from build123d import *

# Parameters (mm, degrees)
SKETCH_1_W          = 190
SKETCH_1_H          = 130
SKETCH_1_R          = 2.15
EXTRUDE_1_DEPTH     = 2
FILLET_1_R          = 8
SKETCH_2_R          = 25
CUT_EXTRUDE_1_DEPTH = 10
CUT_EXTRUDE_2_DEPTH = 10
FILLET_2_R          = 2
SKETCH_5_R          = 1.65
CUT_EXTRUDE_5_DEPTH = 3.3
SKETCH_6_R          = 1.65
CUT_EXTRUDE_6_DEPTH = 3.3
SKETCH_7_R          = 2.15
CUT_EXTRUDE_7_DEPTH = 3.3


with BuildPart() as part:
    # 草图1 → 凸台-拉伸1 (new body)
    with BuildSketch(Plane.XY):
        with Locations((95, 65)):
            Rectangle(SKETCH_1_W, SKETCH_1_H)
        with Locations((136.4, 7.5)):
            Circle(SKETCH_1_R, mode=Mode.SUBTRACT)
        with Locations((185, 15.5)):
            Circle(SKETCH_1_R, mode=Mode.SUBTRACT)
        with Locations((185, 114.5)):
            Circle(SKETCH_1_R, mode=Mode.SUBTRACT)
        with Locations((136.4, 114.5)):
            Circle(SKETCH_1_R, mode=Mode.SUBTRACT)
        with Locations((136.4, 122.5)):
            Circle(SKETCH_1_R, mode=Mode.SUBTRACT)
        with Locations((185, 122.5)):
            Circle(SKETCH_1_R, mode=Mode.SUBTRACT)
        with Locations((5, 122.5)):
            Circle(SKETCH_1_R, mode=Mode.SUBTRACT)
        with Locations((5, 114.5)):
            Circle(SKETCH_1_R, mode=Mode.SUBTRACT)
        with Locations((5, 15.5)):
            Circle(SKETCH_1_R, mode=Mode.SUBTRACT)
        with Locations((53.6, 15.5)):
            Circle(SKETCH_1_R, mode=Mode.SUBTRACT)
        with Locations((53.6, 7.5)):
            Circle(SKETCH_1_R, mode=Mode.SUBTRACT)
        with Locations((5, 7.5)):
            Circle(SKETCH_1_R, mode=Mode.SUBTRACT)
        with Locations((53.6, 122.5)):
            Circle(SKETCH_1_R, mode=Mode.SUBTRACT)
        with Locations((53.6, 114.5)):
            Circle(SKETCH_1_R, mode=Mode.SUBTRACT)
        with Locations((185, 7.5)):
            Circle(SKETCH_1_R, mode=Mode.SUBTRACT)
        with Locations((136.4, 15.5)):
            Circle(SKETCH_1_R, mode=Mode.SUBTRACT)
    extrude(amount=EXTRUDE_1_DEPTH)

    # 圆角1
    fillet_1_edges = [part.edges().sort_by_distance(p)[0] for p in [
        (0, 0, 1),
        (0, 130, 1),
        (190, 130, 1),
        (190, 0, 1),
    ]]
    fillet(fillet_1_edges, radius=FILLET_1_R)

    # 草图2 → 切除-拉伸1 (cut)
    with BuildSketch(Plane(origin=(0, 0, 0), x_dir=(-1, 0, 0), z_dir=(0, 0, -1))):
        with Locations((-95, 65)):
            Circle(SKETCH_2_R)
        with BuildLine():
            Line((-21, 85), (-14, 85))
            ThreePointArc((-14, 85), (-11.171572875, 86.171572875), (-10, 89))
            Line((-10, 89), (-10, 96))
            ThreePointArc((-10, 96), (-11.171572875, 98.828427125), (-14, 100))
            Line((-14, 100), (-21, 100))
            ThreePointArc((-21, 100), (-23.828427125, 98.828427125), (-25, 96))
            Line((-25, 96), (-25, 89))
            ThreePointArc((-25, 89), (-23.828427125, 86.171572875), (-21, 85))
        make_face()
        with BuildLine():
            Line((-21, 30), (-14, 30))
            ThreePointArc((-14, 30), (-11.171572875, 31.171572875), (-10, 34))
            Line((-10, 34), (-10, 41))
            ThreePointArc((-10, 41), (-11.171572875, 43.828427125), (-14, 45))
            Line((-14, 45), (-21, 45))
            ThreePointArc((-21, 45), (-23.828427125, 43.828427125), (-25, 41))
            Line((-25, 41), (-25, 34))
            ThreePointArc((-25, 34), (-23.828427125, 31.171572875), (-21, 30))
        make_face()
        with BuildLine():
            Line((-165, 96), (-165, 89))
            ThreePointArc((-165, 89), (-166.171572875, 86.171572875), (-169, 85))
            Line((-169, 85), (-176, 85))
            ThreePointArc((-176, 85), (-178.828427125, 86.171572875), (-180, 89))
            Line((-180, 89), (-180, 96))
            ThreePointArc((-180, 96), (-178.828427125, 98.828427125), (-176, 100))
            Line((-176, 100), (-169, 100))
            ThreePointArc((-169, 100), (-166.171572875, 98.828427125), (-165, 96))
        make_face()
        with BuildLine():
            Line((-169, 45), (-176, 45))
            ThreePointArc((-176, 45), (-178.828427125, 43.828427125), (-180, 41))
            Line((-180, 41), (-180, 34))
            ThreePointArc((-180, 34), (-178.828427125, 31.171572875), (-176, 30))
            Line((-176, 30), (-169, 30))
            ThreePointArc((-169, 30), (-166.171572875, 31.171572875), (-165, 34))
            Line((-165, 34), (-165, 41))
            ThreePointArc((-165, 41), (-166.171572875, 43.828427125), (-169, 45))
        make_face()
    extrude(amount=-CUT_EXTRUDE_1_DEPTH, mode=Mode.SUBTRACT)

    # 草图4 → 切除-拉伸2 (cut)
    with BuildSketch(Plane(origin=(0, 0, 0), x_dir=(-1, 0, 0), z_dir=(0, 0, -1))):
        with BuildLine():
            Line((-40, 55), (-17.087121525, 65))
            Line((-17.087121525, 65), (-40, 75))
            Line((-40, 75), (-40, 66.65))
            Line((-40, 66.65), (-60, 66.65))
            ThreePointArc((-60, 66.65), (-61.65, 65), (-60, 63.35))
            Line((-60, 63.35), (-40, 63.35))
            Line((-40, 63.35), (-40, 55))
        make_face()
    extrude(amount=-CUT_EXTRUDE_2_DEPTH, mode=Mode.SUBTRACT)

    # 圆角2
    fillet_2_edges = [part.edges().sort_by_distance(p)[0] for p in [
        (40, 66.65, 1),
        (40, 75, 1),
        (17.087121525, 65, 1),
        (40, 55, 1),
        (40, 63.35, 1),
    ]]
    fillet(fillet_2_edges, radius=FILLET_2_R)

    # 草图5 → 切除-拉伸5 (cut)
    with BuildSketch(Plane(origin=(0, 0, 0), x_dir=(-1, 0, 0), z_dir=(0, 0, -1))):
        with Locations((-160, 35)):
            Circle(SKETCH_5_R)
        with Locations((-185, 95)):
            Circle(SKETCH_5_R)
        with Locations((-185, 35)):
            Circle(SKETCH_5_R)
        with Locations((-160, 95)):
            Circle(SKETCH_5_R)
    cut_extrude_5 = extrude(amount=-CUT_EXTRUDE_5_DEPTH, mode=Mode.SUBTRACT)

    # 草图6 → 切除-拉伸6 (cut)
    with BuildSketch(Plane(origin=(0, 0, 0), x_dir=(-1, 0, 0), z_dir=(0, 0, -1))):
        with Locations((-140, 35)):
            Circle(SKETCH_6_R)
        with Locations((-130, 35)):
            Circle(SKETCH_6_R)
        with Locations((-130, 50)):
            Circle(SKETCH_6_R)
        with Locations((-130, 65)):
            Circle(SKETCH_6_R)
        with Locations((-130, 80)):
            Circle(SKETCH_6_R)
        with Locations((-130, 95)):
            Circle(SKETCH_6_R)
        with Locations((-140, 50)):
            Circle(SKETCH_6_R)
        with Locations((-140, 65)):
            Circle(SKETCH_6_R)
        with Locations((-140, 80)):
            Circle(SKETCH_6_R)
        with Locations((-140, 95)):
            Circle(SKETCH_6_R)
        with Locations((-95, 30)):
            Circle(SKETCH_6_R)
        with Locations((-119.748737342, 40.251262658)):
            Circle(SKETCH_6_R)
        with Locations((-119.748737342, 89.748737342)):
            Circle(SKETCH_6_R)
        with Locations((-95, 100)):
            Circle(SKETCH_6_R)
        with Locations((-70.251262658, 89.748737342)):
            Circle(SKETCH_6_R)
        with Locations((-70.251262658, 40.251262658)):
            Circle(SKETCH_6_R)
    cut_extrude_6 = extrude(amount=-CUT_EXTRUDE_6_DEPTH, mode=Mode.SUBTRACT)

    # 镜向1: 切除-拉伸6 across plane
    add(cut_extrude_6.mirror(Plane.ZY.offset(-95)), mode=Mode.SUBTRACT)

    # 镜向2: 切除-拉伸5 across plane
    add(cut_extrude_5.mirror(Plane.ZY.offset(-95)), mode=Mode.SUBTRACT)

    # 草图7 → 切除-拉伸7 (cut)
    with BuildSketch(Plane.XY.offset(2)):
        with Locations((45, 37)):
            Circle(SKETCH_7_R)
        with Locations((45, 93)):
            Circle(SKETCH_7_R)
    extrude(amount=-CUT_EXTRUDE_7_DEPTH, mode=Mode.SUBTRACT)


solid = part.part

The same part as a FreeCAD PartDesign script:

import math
import FreeCAD as App
import Part
import Sketcher

V = App.Vector
Q = App.Units.Quantity


def edges_at(feature, points):
    """Names of the edges that pass closest to the given points."""
    edges = feature.Shape.Edges
    near = lambda p: min(range(len(edges)), key=lambda i: edges[i].distToShape(Part.Vertex(*p))[0])
    return sorted({f"Edge{near(p) + 1}" for p in points})


def add_polygon(sketch, points):
    """Adds a closed chain of lines whose ends are joined by coincident constraints."""
    first, n = sketch.GeometryCount, len(points)
    for a, b in zip(points, points[1:] + points[:1]):
        sketch.addGeometry(Part.LineSegment(App.Vector(*a, 0), App.Vector(*b, 0)), False)
    for i in range(n):
        sketch.addConstraint(Sketcher.Constraint("Coincident", first + i, 2, first + (i + 1) % n, 1))

doc = App.newDocument("Part")
params = doc.addObject("Spreadsheet::Sheet", "Params")
for row, (alias, value) in enumerate([
    ("sketch1_diameter", "4.3 mm"),
    ("sketch1_width", "190 mm"),
    ("sketch1_height", "130 mm"),
    ("pad1_length", "2 mm"),
    ("fillet_radius", "8 mm"),
    ("sketch2_diameter", "50 mm"),
    ("sketch2_radius", "4 mm"),
    ("sketch2_width", "7 mm"),
    ("pocket1_length", "10 mm"),
    ("sketch3_width", "20 mm"),
    ("sketch3_radius", "1.65 mm"),
    ("sketch3_length", "25 mm"),
    ("pocket2_length", "10 mm"),
    ("fillet2_radius", "2 mm"),
    ("sketch4_diameter", "3.3 mm"),
    ("pocket3_length", "3.3 mm"),
    ("sketch5_diameter", "3.3 mm"),
    ("pocket4_length", "3.3 mm"),
    ("sketch6_diameter", "4.3 mm"),
    ("pocket5_length", "3.3 mm"),
], start=1):
    params.set(f"A{row}", alias)
    params.set(f"B{row}", "=" + value)
    params.setAlias(f"B{row}", alias)

body = doc.addObject("PartDesign::Body", "Body")

sketch1 = body.newObject("Sketcher::SketchObject", "Sketch")
sketch1.AttachmentSupport = (doc.getObject("XY_Plane"), [""])
sketch1.MapMode = "FlatFace"
add_polygon(sketch1, [(0, 130), (0, 0), (190, 0), (190, 130)])
sketch1.addGeometry(Part.Circle(V(5, 7.5, 0), V(0, 0, 1), 2.15), False)
sketch1.addGeometry(Part.Circle(V(5, 15.5, 0), V(0, 0, 1), 2.15), False)
sketch1.addGeometry(Part.Circle(V(53.6, 7.5, 0), V(0, 0, 1), 2.15), False)
sketch1.addGeometry(Part.Circle(V(53.6, 15.5, 0), V(0, 0, 1), 2.15), False)
sketch1.addGeometry(Part.Circle(V(136.4, 7.5, 0), V(0, 0, 1), 2.15), False)
sketch1.addGeometry(Part.Circle(V(136.4, 15.5, 0), V(0, 0, 1), 2.15), False)
sketch1.addGeometry(Part.Circle(V(185, 7.5, 0), V(0, 0, 1), 2.15), False)
sketch1.addGeometry(Part.Circle(V(185, 15.5, 0), V(0, 0, 1), 2.15), False)
sketch1.addGeometry(Part.Circle(V(5, 114.5, 0), V(0, 0, 1), 2.15), False)
sketch1.addGeometry(Part.Circle(V(5, 122.5, 0), V(0, 0, 1), 2.15), False)
sketch1.addGeometry(Part.Circle(V(53.6, 114.5, 0), V(0, 0, 1), 2.15), False)
sketch1.addGeometry(Part.Circle(V(53.6, 122.5, 0), V(0, 0, 1), 2.15), False)
sketch1.addGeometry(Part.Circle(V(136.4, 114.5, 0), V(0, 0, 1), 2.15), False)
sketch1.addGeometry(Part.Circle(V(136.4, 122.5, 0), V(0, 0, 1), 2.15), False)
sketch1.addGeometry(Part.Circle(V(185, 114.5, 0), V(0, 0, 1), 2.15), False)
sketch1.addGeometry(Part.Circle(V(185, 122.5, 0), V(0, 0, 1), 2.15), False)
sketch1.addConstraint([
    Sketcher.Constraint("Vertical", 0),
    Sketcher.Constraint("Horizontal", 1),
    Sketcher.Constraint("Vertical", 2),
    Sketcher.Constraint("Horizontal", 3),
    Sketcher.Constraint("Coincident", 0, 2, -1, 1),
    Sketcher.Constraint("Equal", 4, 5),
    Sketcher.Constraint("Equal", 5, 6),
    Sketcher.Constraint("Equal", 6, 7),
    Sketcher.Constraint("Equal", 7, 8),
    Sketcher.Constraint("Equal", 8, 9),
    Sketcher.Constraint("Equal", 9, 10),
    Sketcher.Constraint("Equal", 10, 11),
    Sketcher.Constraint("Equal", 11, 12),
    Sketcher.Constraint("Equal", 12, 13),
    Sketcher.Constraint("Equal", 13, 14),
    Sketcher.Constraint("Equal", 14, 15),
    Sketcher.Constraint("Equal", 15, 16),
    Sketcher.Constraint("Equal", 16, 17),
    Sketcher.Constraint("Equal", 17, 18),
    Sketcher.Constraint("Equal", 18, 19),
    Sketcher.Constraint("Horizontal", 4, 3, 6, 3),
    Sketcher.Constraint("Horizontal", 5, 3, 7, 3),
    Sketcher.Constraint("Horizontal", 6, 3, 8, 3),
    Sketcher.Constraint("Horizontal", 7, 3, 9, 3),
    Sketcher.Constraint("Horizontal", 8, 3, 10, 3),
    Sketcher.Constraint("Horizontal", 9, 3, 11, 3),
    Sketcher.Constraint("Horizontal", 12, 3, 14, 3),
    Sketcher.Constraint("Horizontal", 13, 3, 15, 3),
    Sketcher.Constraint("Horizontal", 14, 3, 16, 3),
    Sketcher.Constraint("Horizontal", 15, 3, 17, 3),
    Sketcher.Constraint("Horizontal", 16, 3, 18, 3),
    Sketcher.Constraint("Horizontal", 17, 3, 19, 3),
    Sketcher.Constraint("Vertical", 4, 3, 5, 3),
    Sketcher.Constraint("Vertical", 6, 3, 7, 3),
    Sketcher.Constraint("Vertical", 8, 3, 9, 3),
    Sketcher.Constraint("Vertical", 10, 3, 11, 3),
    Sketcher.Constraint("Vertical", 5, 3, 12, 3),
    Sketcher.Constraint("Vertical", 12, 3, 13, 3),
    Sketcher.Constraint("Vertical", 7, 3, 14, 3),
    Sketcher.Constraint("Vertical", 14, 3, 15, 3),
    Sketcher.Constraint("Vertical", 9, 3, 16, 3),
    Sketcher.Constraint("Vertical", 16, 3, 17, 3),
    Sketcher.Constraint("Vertical", 11, 3, 18, 3),
    Sketcher.Constraint("Vertical", 18, 3, 19, 3),
    Sketcher.Constraint("Diameter", 4, Q("4.3 mm")),
    Sketcher.Constraint("DistanceX", 1, 1, 1, 2, Q("190 mm")),
    Sketcher.Constraint("DistanceY", 0, 2, 0, 1, Q("130 mm")),
    Sketcher.Constraint("DistanceX", -1, 1, 4, 3, Q("5 mm")),
    Sketcher.Constraint("DistanceX", -1, 1, 10, 3, Q("185 mm")),
    Sketcher.Constraint("DistanceY", 4, 3, 5, 3, Q("8 mm")),
    Sketcher.Constraint("DistanceY", 5, 3, 12, 3, Q("99 mm")),
    Sketcher.Constraint("DistanceY", 12, 3, 13, 3, Q("8 mm")),
    Sketcher.Constraint("DistanceY", -1, 1, 4, 3, Q("7.5 mm")),
    Sketcher.Constraint("DistanceX", -1, 1, 6, 3, Q("53.6 mm")),
    Sketcher.Constraint("DistanceX", -1, 1, 8, 3, Q("136.4 mm")),
])
sketch1.setExpression("Constraints[48]", "Params.sketch1_diameter")
sketch1.setExpression("Constraints[49]", "Params.sketch1_width")
sketch1.setExpression("Constraints[50]", "Params.sketch1_height")
pad1 = body.newObject("PartDesign::Pad", "Pad")
pad1.Profile = sketch1
pad1.setExpression("Length", "Params.pad1_length")
doc.recompute()

fillet = body.newObject("PartDesign::Fillet", "Fillet")
fillet.Base = (pad1, edges_at(pad1, [
    (0, 0, 1),
    (0, 130, 1),
    (190, 130, 1),
    (190, 0, 1),
]))
fillet.setExpression("Radius", "Params.fillet_radius")

sketch2 = body.newObject("Sketcher::SketchObject", "Sketch001")
sketch2.AttachmentSupport = (doc.getObject("XY_Plane"), [""])
sketch2.MapMode = "FlatFace"
sketch2.addGeometry([
    Part.Circle(V(95, 65, 0), V(0, 0, 1), 25),
    Part.LineSegment(V(21, 85, 0), V(14, 85, 0)),
    Part.ArcOfCircle(Part.Circle(V(14, 89, 0), V(0, 0, 1), 4), math.radians(180), math.radians(270)),
    Part.LineSegment(V(10, 89, 0), V(10, 96, 0)),
    Part.ArcOfCircle(Part.Circle(V(14, 96, 0), V(0, 0, 1), 4), math.radians(90), math.radians(180)),
    Part.LineSegment(V(14, 100, 0), V(21, 100, 0)),
    Part.ArcOfCircle(Part.Circle(V(21, 96, 0), V(0, 0, 1), 4), math.radians(0), math.radians(90)),
    Part.LineSegment(V(25, 96, 0), V(25, 89, 0)),
    Part.ArcOfCircle(Part.Circle(V(21, 89, 0), V(0, 0, 1), 4), math.radians(-90), math.radians(0)),
    Part.LineSegment(V(21, 30, 0), V(14, 30, 0)),
    Part.ArcOfCircle(Part.Circle(V(14, 34, 0), V(0, 0, 1), 4), math.radians(180), math.radians(270)),
    Part.LineSegment(V(10, 34, 0), V(10, 41, 0)),
    Part.ArcOfCircle(Part.Circle(V(14, 41, 0), V(0, 0, 1), 4), math.radians(90), math.radians(180)),
    Part.LineSegment(V(14, 45, 0), V(21, 45, 0)),
    Part.ArcOfCircle(Part.Circle(V(21, 41, 0), V(0, 0, 1), 4), math.radians(0), math.radians(90)),
    Part.LineSegment(V(25, 41, 0), V(25, 34, 0)),
    Part.ArcOfCircle(Part.Circle(V(21, 34, 0), V(0, 0, 1), 4), math.radians(-90), math.radians(0)),
    Part.LineSegment(V(165, 89, 0), V(165, 96, 0)),
    Part.ArcOfCircle(Part.Circle(V(169, 96, 0), V(0, 0, 1), 4), math.radians(90), math.radians(180)),
    Part.LineSegment(V(169, 100, 0), V(176, 100, 0)),
    Part.ArcOfCircle(Part.Circle(V(176, 96, 0), V(0, 0, 1), 4), math.radians(0), math.radians(90)),
    Part.LineSegment(V(180, 96, 0), V(180, 89, 0)),
    Part.ArcOfCircle(Part.Circle(V(176, 89, 0), V(0, 0, 1), 4), math.radians(-90), math.radians(0)),
    Part.LineSegment(V(176, 85, 0), V(169, 85, 0)),
    Part.ArcOfCircle(Part.Circle(V(169, 89, 0), V(0, 0, 1), 4), math.radians(180), math.radians(270)),
    Part.LineSegment(V(169, 45, 0), V(176, 45, 0)),
    Part.ArcOfCircle(Part.Circle(V(176, 41, 0), V(0, 0, 1), 4), math.radians(0), math.radians(90)),
    Part.LineSegment(V(180, 41, 0), V(180, 34, 0)),
    Part.ArcOfCircle(Part.Circle(V(176, 34, 0), V(0, 0, 1), 4), math.radians(-90), math.radians(0)),
    Part.LineSegment(V(176, 30, 0), V(169, 30, 0)),
    Part.ArcOfCircle(Part.Circle(V(169, 34, 0), V(0, 0, 1), 4), math.radians(180), math.radians(270)),
    Part.LineSegment(V(165, 34, 0), V(165, 41, 0)),
    Part.ArcOfCircle(Part.Circle(V(169, 41, 0), V(0, 0, 1), 4), math.radians(90), math.radians(180)),
], False)
sketch2.addConstraint([
    Sketcher.Constraint("Tangent", 1, 2, 2, 2),
    Sketcher.Constraint("Tangent", 2, 1, 3, 1),
    Sketcher.Constraint("Tangent", 3, 2, 4, 2),
    Sketcher.Constraint("Tangent", 4, 1, 5, 1),
    Sketcher.Constraint("Tangent", 5, 2, 6, 2),
    Sketcher.Constraint("Tangent", 6, 1, 7, 1),
    Sketcher.Constraint("Tangent", 7, 2, 8, 2),
    Sketcher.Constraint("Tangent", 8, 1, 1, 1),
    Sketcher.Constraint("Tangent", 9, 2, 10, 2),
    Sketcher.Constraint("Tangent", 10, 1, 11, 1),
    Sketcher.Constraint("Tangent", 11, 2, 12, 2),
    Sketcher.Constraint("Tangent", 12, 1, 13, 1),
    Sketcher.Constraint("Tangent", 13, 2, 14, 2),
    Sketcher.Constraint("Tangent", 14, 1, 15, 1),
    Sketcher.Constraint("Tangent", 15, 2, 16, 2),
    Sketcher.Constraint("Tangent", 16, 1, 9, 1),
    Sketcher.Constraint("Tangent", 17, 2, 18, 2),
    Sketcher.Constraint("Tangent", 18, 1, 19, 1),
    Sketcher.Constraint("Tangent", 19, 2, 20, 2),
    Sketcher.Constraint("Tangent", 20, 1, 21, 1),
    Sketcher.Constraint("Tangent", 21, 2, 22, 2),
    Sketcher.Constraint("Tangent", 22, 1, 23, 1),
    Sketcher.Constraint("Tangent", 23, 2, 24, 2),
    Sketcher.Constraint("Tangent", 24, 1, 17, 1),
    Sketcher.Constraint("Tangent", 25, 2, 26, 2),
    Sketcher.Constraint("Tangent", 26, 1, 27, 1),
    Sketcher.Constraint("Tangent", 27, 2, 28, 2),
    Sketcher.Constraint("Tangent", 28, 1, 29, 1),
    Sketcher.Constraint("Tangent", 29, 2, 30, 2),
    Sketcher.Constraint("Tangent", 30, 1, 31, 1),
    Sketcher.Constraint("Tangent", 31, 2, 32, 2),
    Sketcher.Constraint("Tangent", 32, 1, 25, 1),
    Sketcher.Constraint("Horizontal", 1),
    Sketcher.Constraint("Vertical", 3),
    Sketcher.Constraint("Horizontal", 5),
    Sketcher.Constraint("Vertical", 7),
    Sketcher.Constraint("Horizontal", 9),
    Sketcher.Constraint("Vertical", 11),
    Sketcher.Constraint("Horizontal", 13),
    Sketcher.Constraint("Vertical", 15),
    Sketcher.Constraint("Vertical", 17),
    Sketcher.Constraint("Horizontal", 19),
    Sketcher.Constraint("Vertical", 21),
    Sketcher.Constraint("Horizontal", 23),
    Sketcher.Constraint("Horizontal", 25),
    Sketcher.Constraint("Vertical", 27),
    Sketcher.Constraint("Horizontal", 29),
    Sketcher.Constraint("Vertical", 31),
    Sketcher.Constraint("Equal", 2, 4),
    Sketcher.Constraint("Equal", 4, 6),
    Sketcher.Constraint("Equal", 6, 8),
    Sketcher.Constraint("Equal", 8, 10),
    Sketcher.Constraint("Equal", 10, 12),
    Sketcher.Constraint("Equal", 12, 14),
    Sketcher.Constraint("Equal", 14, 16),
    Sketcher.Constraint("Equal", 16, 18),
    Sketcher.Constraint("Equal", 18, 20),
    Sketcher.Constraint("Equal", 20, 22),
    Sketcher.Constraint("Equal", 22, 24),
    Sketcher.Constraint("Equal", 24, 26),
    Sketcher.Constraint("Equal", 26, 28),
    Sketcher.Constraint("Equal", 28, 30),
    Sketcher.Constraint("Equal", 30, 32),
    Sketcher.Constraint("Horizontal", 6, 3, 18, 3),
    Sketcher.Constraint("Horizontal", 8, 3, 22, 3),
    Sketcher.Constraint("Horizontal", 14, 3, 26, 3),
    Sketcher.Constraint("Horizontal", 16, 3, 28, 3),
    Sketcher.Constraint("Vertical", 4, 3, 10, 3),
    Sketcher.Constraint("Vertical", 8, 3, 14, 3),
    Sketcher.Constraint("Vertical", 22, 3, 26, 3),
    Sketcher.Constraint("Vertical", 24, 3, 30, 3),
    Sketcher.Constraint("Equal", 13, 19),
    Sketcher.Constraint("Equal", 29, 3),
    Sketcher.Constraint("Equal", 7, 11),
    Sketcher.Constraint("Diameter", 0, Q("50 mm")),
    Sketcher.Constraint("Radius", 2, Q("4 mm")),
    Sketcher.Constraint("DistanceX", 1, 2, 1, 1, Q("7 mm")),
    Sketcher.Constraint("DistanceX", -1, 1, 0, 3, Q("95 mm")),
    Sketcher.Constraint("DistanceY", -1, 1, 0, 3, Q("65 mm")),
    Sketcher.Constraint("DistanceX", -1, 1, 2, 3, Q("14 mm")),
    Sketcher.Constraint("DistanceY", -1, 1, 2, 3, Q("89 mm")),
    Sketcher.Constraint("DistanceY", -1, 1, 10, 3, Q("34 mm")),
    Sketcher.Constraint("DistanceX", -1, 1, 18, 3, Q("169 mm")),
])
sketch2.setExpression("Constraints[74]", "Params.sketch2_diameter")
sketch2.setExpression("Constraints[75]", "Params.sketch2_radius")
sketch2.setExpression("Constraints[76]", "Params.sketch2_width")
pocket1 = body.newObject("PartDesign::Pocket", "Pocket")
pocket1.Profile = sketch2
pocket1.setExpression("Length", "Params.pocket1_length")
pocket1.Reversed = True

sketch3 = body.newObject("Sketcher::SketchObject", "Sketch002")
sketch3.AttachmentSupport = (doc.getObject("XY_Plane"), [""])
sketch3.MapMode = "FlatFace"
sketch3.addGeometry([
    Part.LineSegment(V(40, 55, 0), V(17.087122, 65, 0)),
    Part.LineSegment(V(17.087122, 65, 0), V(40, 75, 0)),
    Part.LineSegment(V(40, 75, 0), V(40, 66.65, 0)),
    Part.LineSegment(V(40, 66.65, 0), V(60, 66.65, 0)),
    Part.ArcOfCircle(Part.Circle(V(60, 65, 0), V(0, 0, 1), 1.65), math.radians(-90), math.radians(90)),
    Part.LineSegment(V(60, 63.35, 0), V(40, 63.35, 0)),
    Part.LineSegment(V(40, 63.35, 0), V(40, 55, 0)),
], False)
sketch3.addConstraint([
    Sketcher.Constraint("Coincident", 0, 2, 1, 1),
    Sketcher.Constraint("Coincident", 1, 2, 2, 1),
    Sketcher.Constraint("Coincident", 2, 2, 3, 1),
    Sketcher.Constraint("Tangent", 3, 2, 4, 2),
    Sketcher.Constraint("Tangent", 4, 1, 5, 1),
    Sketcher.Constraint("Coincident", 5, 2, 6, 1),
    Sketcher.Constraint("Coincident", 6, 2, 0, 1),
    Sketcher.Constraint("Vertical", 2),
    Sketcher.Constraint("Horizontal", 3),
    Sketcher.Constraint("Horizontal", 5),
    Sketcher.Constraint("Vertical", 6),
    Sketcher.Constraint("Horizontal", 4, 3, 0, 2),
    Sketcher.Constraint("Vertical", 2, 2, 5, 2),
    Sketcher.Constraint("Equal", 2, 6),
    Sketcher.Constraint("DistanceX", 3, 1, 3, 2, Q("20 mm")),
    Sketcher.Constraint("Radius", 4, Q("1.65 mm")),
    Sketcher.Constraint("Distance", 0, Q("25 mm")),
    Sketcher.Constraint("DistanceX", -1, 1, 4, 3, Q("60 mm")),
    Sketcher.Constraint("DistanceY", -1, 1, 4, 3, Q("65 mm")),
    Sketcher.Constraint("DistanceY", -1, 1, 1, 2, Q("75 mm")),
])
sketch3.setExpression("Constraints[14]", "Params.sketch3_width")
sketch3.setExpression("Constraints[15]", "Params.sketch3_radius")
sketch3.setExpression("Constraints[16]", "Params.sketch3_length")
pocket2 = body.newObject("PartDesign::Pocket", "Pocket001")
pocket2.Profile = sketch3
pocket2.setExpression("Length", "Params.pocket2_length")
pocket2.Reversed = True
doc.recompute()

fillet2 = body.newObject("PartDesign::Fillet", "Fillet001")
fillet2.Base = (pocket2, edges_at(pocket2, [
    (40, 66.65, 1),
    (40, 75, 1),
    (17.087, 65, 1),
    (40, 55, 1),
    (40, 63.35, 1),
]))
fillet2.setExpression("Radius", "Params.fillet2_radius")

sketch4 = body.newObject("Sketcher::SketchObject", "Sketch003")
sketch4.AttachmentSupport = (doc.getObject("XY_Plane"), [""])
sketch4.MapMode = "FlatFace"
sketch4.addGeometry([
    Part.Circle(V(160, 35, 0), V(0, 0, 1), 1.65),
    Part.Circle(V(185, 95, 0), V(0, 0, 1), 1.65),
    Part.Circle(V(185, 35, 0), V(0, 0, 1), 1.65),
    Part.Circle(V(160, 95, 0), V(0, 0, 1), 1.65),
], False)
sketch4.addConstraint([
    Sketcher.Constraint("Equal", 0, 1),
    Sketcher.Constraint("Equal", 1, 2),
    Sketcher.Constraint("Equal", 2, 3),
    Sketcher.Constraint("Horizontal", 0, 3, 2, 3),
    Sketcher.Constraint("Horizontal", 1, 3, 3, 3),
    Sketcher.Constraint("Vertical", 1, 3, 2, 3),
    Sketcher.Constraint("Vertical", 0, 3, 3, 3),
    Sketcher.Constraint("Diameter", 0, Q("3.3 mm")),
    Sketcher.Constraint("DistanceX", -1, 1, 0, 3, Q("160 mm")),
    Sketcher.Constraint("DistanceY", -1, 1, 0, 3, Q("35 mm")),
    Sketcher.Constraint("DistanceX", -1, 1, 1, 3, Q("185 mm")),
    Sketcher.Constraint("DistanceY", -1, 1, 1, 3, Q("95 mm")),
])
sketch4.setExpression("Constraints[7]", "Params.sketch4_diameter")
pocket3 = body.newObject("PartDesign::Pocket", "Pocket002")
pocket3.Profile = sketch4
pocket3.setExpression("Length", "Params.pocket3_length")
pocket3.Reversed = True

sketch5 = body.newObject("Sketcher::SketchObject", "Sketch004")
sketch5.AttachmentSupport = (doc.getObject("XY_Plane"), [""])
sketch5.MapMode = "FlatFace"
sketch5.addGeometry([
    Part.Circle(V(140, 35, 0), V(0, 0, 1), 1.65),
    Part.Circle(V(130, 35, 0), V(0, 0, 1), 1.65),
    Part.Circle(V(130, 50, 0), V(0, 0, 1), 1.65),
    Part.Circle(V(130, 65, 0), V(0, 0, 1), 1.65),
    Part.Circle(V(130, 80, 0), V(0, 0, 1), 1.65),
    Part.Circle(V(130, 95, 0), V(0, 0, 1), 1.65),
    Part.Circle(V(140, 50, 0), V(0, 0, 1), 1.65),
    Part.Circle(V(140, 65, 0), V(0, 0, 1), 1.65),
    Part.Circle(V(140, 80, 0), V(0, 0, 1), 1.65),
    Part.Circle(V(140, 95, 0), V(0, 0, 1), 1.65),
    Part.Circle(V(95, 30, 0), V(0, 0, 1), 1.65),
    Part.Circle(V(119.748737, 40.251263, 0), V(0, 0, 1), 1.65),
    Part.Circle(V(119.748737, 89.748737, 0), V(0, 0, 1), 1.65),
    Part.Circle(V(95, 100, 0), V(0, 0, 1), 1.65),
    Part.Circle(V(70.251263, 89.748737, 0), V(0, 0, 1), 1.65),
    Part.Circle(V(70.251263, 40.251263, 0), V(0, 0, 1), 1.65),
], False)
sketch5.addConstraint([
    Sketcher.Constraint("Equal", 0, 1),
    Sketcher.Constraint("Equal", 1, 2),
    Sketcher.Constraint("Equal", 2, 3),
    Sketcher.Constraint("Equal", 3, 4),
    Sketcher.Constraint("Equal", 4, 5),
    Sketcher.Constraint("Equal", 5, 6),
    Sketcher.Constraint("Equal", 6, 7),
    Sketcher.Constraint("Equal", 7, 8),
    Sketcher.Constraint("Equal", 8, 9),
    Sketcher.Constraint("Equal", 9, 10),
    Sketcher.Constraint("Equal", 10, 11),
    Sketcher.Constraint("Equal", 11, 12),
    Sketcher.Constraint("Equal", 12, 13),
    Sketcher.Constraint("Equal", 13, 14),
    Sketcher.Constraint("Equal", 14, 15),
    Sketcher.Constraint("Horizontal", 0, 3, 1, 3),
    Sketcher.Constraint("Horizontal", 2, 3, 6, 3),
    Sketcher.Constraint("Horizontal", 3, 3, 7, 3),
    Sketcher.Constraint("Horizontal", 4, 3, 8, 3),
    Sketcher.Constraint("Horizontal", 5, 3, 9, 3),
    Sketcher.Constraint("Horizontal", 12, 3, 14, 3),
    Sketcher.Constraint("Horizontal", 11, 3, 15, 3),
    Sketcher.Constraint("Vertical", 1, 3, 2, 3),
    Sketcher.Constraint("Vertical", 2, 3, 3, 3),
    Sketcher.Constraint("Vertical", 3, 3, 4, 3),
    Sketcher.Constraint("Vertical", 4, 3, 5, 3),
    Sketcher.Constraint("Vertical", 0, 3, 6, 3),
    Sketcher.Constraint("Vertical", 6, 3, 7, 3),
    Sketcher.Constraint("Vertical", 7, 3, 8, 3),
    Sketcher.Constraint("Vertical", 8, 3, 9, 3),
    Sketcher.Constraint("Vertical", 11, 3, 12, 3),
    Sketcher.Constraint("Vertical", 10, 3, 13, 3),
    Sketcher.Constraint("Vertical", 14, 3, 15, 3),
    Sketcher.Constraint("Diameter", 0, Q("3.3 mm")),
    Sketcher.Constraint("DistanceX", -1, 1, 0, 3, Q("140 mm")),
    Sketcher.Constraint("DistanceY", -1, 1, 0, 3, Q("35 mm")),
    Sketcher.Constraint("DistanceX", -1, 1, 1, 3, Q("130 mm")),
    Sketcher.Constraint("DistanceY", -1, 1, 2, 3, Q("50 mm")),
    Sketcher.Constraint("DistanceY", -1, 1, 3, 3, Q("65 mm")),
    Sketcher.Constraint("DistanceY", -1, 1, 4, 3, Q("80 mm")),
    Sketcher.Constraint("DistanceY", -1, 1, 5, 3, Q("95 mm")),
    Sketcher.Constraint("DistanceX", -1, 1, 10, 3, Q("95 mm")),
    Sketcher.Constraint("DistanceY", -1, 1, 10, 3, Q("30 mm")),
    Sketcher.Constraint("DistanceY", -1, 1, 13, 3, Q("100 mm")),
    Sketcher.Constraint("DistanceX", -1, 1, 11, 3, Q("119.748737 mm")),
    Sketcher.Constraint("DistanceY", -1, 1, 11, 3, Q("40.251263 mm")),
    Sketcher.Constraint("DistanceY", -1, 1, 12, 3, Q("89.748737 mm")),
    Sketcher.Constraint("DistanceX", -1, 1, 14, 3, Q("70.251263 mm")),
])
sketch5.setExpression("Constraints[33]", "Params.sketch5_diameter")
pocket4 = body.newObject("PartDesign::Pocket", "Pocket003")
pocket4.Profile = sketch5
pocket4.setExpression("Length", "Params.pocket4_length")
pocket4.Reversed = True
doc.recompute()

datumplane = body.newObject("PartDesign::Plane", "DatumPlane")
datumplane.AttachmentSupport = (doc.getObject("YZ_Plane"), [""])
datumplane.MapMode = "FlatFace"
datumplane.AttachmentOffset = App.Placement(V(0, 0, 95), App.Rotation())
mirrored = body.newObject("PartDesign::Mirrored", "Mirrored")
mirrored.Originals = [pocket4]
mirrored.MirrorPlane = (datumplane, [""])
body.Tip = mirrored
doc.recompute()

datumplane2 = body.newObject("PartDesign::Plane", "DatumPlane001")
datumplane2.AttachmentSupport = (doc.getObject("YZ_Plane"), [""])
datumplane2.MapMode = "FlatFace"
datumplane2.AttachmentOffset = App.Placement(V(0, 0, 95), App.Rotation())
mirrored2 = body.newObject("PartDesign::Mirrored", "Mirrored001")
mirrored2.Originals = [pocket3]
mirrored2.MirrorPlane = (datumplane2, [""])
body.Tip = mirrored2

sketch6 = body.newObject("Sketcher::SketchObject", "Sketch005")
sketch6.AttachmentSupport = (doc.getObject("XY_Plane"), [""])
sketch6.MapMode = "FlatFace"
sketch6.AttachmentOffset = App.Placement(V(0, 0, 2), App.Rotation())
sketch6.addGeometry([
    Part.Circle(V(45, 37, 0), V(0, 0, 1), 2.15),
    Part.Circle(V(45, 93, 0), V(0, 0, 1), 2.15),
], False)
sketch6.addConstraint([
    Sketcher.Constraint("Equal", 0, 1),
    Sketcher.Constraint("Vertical", 0, 3, 1, 3),
    Sketcher.Constraint("Diameter", 0, Q("4.3 mm")),
    Sketcher.Constraint("DistanceX", -1, 1, 0, 3, Q("45 mm")),
    Sketcher.Constraint("DistanceY", -1, 1, 0, 3, Q("37 mm")),
    Sketcher.Constraint("DistanceY", -1, 1, 1, 3, Q("93 mm")),
])
sketch6.setExpression("Constraints[2]", "Params.sketch6_diameter")
pocket5 = body.newObject("PartDesign::Pocket", "Pocket004")
pocket5.Profile = sketch6
pocket5.setExpression("Length", "Params.pocket5_length")

doc.recompute()
